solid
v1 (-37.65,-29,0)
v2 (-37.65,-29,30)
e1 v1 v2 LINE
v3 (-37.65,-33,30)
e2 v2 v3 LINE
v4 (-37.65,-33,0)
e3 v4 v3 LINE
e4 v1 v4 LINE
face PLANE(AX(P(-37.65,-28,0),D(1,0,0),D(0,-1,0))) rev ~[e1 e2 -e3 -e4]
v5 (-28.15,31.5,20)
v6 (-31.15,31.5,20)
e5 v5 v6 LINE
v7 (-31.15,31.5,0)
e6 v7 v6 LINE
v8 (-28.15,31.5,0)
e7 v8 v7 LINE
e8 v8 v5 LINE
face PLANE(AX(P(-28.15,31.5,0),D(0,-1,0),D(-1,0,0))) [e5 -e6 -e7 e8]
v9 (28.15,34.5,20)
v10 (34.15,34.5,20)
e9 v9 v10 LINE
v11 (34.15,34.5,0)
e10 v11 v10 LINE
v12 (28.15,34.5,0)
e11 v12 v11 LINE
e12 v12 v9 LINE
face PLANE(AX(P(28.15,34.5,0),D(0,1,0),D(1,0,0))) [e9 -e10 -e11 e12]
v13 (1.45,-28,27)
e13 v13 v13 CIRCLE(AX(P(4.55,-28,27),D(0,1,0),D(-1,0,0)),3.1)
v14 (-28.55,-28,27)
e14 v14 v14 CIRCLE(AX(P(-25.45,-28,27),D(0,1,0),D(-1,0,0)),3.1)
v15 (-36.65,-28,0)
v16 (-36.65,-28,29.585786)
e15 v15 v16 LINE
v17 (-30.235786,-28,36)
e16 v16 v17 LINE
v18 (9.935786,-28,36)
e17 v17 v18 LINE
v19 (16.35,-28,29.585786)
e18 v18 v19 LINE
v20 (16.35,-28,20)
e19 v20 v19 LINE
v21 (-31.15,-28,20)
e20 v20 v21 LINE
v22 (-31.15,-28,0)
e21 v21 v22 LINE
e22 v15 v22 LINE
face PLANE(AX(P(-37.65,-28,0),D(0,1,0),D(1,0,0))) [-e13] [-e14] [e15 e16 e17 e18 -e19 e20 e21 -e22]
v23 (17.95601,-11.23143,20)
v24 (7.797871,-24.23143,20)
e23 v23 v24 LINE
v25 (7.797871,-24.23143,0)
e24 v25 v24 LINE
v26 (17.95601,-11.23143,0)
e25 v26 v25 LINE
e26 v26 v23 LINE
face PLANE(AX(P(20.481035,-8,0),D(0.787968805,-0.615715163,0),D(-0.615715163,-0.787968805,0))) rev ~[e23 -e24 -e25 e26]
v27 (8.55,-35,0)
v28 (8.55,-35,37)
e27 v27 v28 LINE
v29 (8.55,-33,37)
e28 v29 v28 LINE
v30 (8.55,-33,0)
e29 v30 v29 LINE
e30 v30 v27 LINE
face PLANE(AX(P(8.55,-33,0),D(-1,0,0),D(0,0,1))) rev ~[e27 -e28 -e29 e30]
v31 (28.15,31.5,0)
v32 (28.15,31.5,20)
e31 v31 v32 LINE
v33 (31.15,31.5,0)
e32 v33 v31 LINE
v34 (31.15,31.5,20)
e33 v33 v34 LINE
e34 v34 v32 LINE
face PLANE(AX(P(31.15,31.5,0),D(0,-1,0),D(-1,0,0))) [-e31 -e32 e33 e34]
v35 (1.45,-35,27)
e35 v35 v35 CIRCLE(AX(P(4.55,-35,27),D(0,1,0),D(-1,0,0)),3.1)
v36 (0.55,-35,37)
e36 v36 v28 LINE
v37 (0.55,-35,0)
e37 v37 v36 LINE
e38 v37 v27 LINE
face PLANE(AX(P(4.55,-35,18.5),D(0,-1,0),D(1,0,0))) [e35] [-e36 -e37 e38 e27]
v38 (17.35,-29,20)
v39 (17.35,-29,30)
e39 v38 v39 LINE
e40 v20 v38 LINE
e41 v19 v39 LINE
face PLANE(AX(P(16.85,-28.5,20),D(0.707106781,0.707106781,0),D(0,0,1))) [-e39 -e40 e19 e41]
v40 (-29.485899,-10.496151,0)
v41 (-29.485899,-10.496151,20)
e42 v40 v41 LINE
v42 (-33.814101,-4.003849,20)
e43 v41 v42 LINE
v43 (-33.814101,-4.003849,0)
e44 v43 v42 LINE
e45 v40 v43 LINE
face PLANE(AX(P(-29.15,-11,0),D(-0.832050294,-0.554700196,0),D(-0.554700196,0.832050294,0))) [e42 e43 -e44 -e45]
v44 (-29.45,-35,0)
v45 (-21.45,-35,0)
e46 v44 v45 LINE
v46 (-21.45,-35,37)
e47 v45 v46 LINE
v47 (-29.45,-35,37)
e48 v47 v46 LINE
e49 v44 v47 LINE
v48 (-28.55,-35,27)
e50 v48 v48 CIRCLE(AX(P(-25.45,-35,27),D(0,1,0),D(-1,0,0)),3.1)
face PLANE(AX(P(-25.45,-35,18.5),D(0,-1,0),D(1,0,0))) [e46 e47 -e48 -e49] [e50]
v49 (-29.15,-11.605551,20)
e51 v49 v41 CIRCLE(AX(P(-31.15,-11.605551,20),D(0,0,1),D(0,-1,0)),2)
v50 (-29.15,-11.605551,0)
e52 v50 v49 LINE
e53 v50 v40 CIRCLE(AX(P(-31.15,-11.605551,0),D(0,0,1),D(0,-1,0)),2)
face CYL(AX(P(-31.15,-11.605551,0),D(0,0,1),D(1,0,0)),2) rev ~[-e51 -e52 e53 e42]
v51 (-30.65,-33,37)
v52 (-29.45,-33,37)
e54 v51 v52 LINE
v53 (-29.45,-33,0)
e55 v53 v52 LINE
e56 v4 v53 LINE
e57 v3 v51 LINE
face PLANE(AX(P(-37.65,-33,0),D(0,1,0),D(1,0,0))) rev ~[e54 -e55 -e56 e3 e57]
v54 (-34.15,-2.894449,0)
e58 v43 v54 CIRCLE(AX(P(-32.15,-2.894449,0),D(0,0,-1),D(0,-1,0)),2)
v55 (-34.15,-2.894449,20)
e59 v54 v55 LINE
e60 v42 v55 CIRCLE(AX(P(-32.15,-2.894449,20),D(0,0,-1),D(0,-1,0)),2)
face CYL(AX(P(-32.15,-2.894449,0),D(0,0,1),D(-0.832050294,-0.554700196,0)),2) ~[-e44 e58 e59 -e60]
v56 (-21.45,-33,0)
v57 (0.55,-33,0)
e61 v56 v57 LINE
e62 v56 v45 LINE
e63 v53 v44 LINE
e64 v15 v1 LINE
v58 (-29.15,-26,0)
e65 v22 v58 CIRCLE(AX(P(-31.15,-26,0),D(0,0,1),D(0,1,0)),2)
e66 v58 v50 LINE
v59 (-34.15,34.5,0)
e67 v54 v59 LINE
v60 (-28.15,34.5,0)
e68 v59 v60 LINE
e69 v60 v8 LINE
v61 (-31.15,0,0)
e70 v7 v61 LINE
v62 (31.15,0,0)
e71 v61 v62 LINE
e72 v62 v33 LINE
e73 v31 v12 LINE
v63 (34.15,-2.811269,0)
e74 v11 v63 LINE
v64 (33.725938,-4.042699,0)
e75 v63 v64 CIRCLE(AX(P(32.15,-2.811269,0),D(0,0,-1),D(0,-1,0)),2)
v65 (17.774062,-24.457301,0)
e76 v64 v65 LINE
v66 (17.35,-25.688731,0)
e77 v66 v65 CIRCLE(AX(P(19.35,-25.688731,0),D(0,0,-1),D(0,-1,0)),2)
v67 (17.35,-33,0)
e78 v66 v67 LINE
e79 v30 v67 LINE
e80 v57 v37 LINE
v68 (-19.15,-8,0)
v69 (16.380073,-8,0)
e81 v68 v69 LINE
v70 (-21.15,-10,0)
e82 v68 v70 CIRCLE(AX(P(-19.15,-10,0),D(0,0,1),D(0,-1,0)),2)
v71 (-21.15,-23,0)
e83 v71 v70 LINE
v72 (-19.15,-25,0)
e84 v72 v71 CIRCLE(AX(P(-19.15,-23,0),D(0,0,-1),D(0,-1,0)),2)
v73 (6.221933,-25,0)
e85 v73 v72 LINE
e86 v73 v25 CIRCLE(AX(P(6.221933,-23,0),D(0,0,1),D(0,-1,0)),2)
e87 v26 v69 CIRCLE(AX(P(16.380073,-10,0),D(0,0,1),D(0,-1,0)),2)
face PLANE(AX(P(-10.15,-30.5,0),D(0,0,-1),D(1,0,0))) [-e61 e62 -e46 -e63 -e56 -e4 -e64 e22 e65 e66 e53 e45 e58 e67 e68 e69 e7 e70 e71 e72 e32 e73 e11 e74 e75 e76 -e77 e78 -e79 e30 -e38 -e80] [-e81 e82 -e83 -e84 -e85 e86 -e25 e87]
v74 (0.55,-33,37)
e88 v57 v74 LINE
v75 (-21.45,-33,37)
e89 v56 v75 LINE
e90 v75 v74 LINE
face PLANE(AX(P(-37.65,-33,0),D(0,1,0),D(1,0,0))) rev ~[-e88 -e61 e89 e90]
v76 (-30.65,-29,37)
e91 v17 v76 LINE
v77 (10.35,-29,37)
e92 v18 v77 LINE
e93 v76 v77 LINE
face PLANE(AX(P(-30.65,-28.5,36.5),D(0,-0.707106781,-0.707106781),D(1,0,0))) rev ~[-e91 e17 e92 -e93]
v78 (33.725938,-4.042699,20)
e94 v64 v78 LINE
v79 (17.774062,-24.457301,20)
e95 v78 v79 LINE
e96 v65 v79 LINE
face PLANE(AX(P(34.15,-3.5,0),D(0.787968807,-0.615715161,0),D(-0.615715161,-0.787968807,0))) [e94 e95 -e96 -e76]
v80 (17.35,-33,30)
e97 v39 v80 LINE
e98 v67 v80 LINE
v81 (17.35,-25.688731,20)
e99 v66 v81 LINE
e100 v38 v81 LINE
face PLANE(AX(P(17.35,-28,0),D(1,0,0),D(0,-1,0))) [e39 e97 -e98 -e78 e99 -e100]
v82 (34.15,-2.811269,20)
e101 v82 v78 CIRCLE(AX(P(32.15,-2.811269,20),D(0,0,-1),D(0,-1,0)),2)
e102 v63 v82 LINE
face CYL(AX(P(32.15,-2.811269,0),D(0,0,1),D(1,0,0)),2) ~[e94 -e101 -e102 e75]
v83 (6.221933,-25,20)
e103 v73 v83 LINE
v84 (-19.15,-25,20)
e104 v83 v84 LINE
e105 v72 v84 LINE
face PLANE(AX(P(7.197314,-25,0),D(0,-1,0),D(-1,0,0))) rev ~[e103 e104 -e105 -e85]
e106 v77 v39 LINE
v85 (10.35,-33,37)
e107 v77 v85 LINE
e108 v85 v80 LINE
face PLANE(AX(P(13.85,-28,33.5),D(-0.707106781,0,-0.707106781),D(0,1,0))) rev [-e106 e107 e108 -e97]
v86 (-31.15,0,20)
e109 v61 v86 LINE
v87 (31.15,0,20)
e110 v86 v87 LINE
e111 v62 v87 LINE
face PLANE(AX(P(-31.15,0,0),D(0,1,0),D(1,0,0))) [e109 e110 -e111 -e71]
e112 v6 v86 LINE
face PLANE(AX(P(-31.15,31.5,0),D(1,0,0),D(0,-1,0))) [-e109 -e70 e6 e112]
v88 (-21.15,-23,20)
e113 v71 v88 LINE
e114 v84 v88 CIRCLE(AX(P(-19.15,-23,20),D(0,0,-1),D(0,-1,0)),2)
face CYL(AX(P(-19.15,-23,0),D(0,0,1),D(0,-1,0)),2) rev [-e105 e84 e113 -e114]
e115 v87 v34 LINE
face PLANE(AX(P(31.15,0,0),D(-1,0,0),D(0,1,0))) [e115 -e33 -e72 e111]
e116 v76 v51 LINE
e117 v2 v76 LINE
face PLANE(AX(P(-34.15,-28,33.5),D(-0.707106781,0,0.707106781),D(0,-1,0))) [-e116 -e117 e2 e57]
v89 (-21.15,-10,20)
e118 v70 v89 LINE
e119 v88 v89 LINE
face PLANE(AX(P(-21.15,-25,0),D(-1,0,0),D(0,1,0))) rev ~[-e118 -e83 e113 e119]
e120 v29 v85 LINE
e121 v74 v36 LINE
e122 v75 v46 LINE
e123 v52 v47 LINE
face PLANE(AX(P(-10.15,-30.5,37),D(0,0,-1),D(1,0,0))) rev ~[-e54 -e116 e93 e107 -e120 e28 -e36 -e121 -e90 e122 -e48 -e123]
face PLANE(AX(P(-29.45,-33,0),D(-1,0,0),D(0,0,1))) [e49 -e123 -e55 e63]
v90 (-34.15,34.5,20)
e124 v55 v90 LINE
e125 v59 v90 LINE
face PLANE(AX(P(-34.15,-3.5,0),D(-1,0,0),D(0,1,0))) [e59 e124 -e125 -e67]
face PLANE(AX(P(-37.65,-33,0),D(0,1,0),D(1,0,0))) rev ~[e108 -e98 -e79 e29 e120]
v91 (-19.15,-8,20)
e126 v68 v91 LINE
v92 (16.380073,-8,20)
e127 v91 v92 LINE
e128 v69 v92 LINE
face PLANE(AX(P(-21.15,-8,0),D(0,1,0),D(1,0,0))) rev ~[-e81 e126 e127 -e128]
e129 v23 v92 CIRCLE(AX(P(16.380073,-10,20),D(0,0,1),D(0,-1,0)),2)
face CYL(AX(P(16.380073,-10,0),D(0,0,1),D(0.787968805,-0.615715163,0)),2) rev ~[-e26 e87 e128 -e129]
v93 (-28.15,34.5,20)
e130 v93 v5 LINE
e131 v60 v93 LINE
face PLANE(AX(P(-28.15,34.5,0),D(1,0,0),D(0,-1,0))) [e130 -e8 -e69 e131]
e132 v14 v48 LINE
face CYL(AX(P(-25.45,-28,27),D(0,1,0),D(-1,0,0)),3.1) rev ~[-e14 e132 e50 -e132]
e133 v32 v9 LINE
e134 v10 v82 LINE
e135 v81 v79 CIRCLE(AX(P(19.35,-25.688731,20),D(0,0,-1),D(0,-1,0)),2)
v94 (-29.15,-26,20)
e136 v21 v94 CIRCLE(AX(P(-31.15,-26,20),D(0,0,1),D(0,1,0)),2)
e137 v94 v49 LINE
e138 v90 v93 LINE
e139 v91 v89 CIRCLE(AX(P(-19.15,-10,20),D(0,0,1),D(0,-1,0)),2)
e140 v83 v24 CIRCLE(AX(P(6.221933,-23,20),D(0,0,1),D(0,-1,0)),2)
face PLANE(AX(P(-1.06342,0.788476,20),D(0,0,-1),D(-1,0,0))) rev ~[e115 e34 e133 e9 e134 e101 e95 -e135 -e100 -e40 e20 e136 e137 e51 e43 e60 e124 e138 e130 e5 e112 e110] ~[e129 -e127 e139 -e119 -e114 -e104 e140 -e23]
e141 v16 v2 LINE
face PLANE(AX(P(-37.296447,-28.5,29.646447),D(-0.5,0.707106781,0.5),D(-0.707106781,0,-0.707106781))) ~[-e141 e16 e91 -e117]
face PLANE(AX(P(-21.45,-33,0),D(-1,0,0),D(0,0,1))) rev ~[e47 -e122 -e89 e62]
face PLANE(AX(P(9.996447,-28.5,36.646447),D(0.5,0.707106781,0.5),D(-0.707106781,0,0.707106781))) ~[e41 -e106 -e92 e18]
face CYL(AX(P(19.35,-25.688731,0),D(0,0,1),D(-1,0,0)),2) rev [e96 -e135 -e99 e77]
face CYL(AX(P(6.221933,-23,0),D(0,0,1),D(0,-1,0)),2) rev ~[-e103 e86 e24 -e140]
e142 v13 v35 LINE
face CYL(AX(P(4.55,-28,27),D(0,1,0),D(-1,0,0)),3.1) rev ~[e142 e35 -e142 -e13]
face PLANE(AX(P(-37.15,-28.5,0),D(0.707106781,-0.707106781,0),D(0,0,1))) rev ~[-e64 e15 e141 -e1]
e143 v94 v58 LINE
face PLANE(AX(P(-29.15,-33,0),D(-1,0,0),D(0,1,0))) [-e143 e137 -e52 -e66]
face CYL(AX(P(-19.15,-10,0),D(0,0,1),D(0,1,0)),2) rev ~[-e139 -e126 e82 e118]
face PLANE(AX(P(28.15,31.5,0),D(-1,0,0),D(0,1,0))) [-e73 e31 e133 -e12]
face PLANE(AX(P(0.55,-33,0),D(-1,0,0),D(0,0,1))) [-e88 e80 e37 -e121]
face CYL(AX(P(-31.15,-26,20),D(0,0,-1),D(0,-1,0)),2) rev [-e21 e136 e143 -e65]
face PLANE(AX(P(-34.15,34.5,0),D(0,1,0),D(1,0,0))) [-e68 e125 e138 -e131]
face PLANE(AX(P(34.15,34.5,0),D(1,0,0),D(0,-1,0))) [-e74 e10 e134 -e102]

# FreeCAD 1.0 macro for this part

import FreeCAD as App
import Part
import Sketcher
Q = App.Units.Quantity


def edges_at(feature, points):
    """Names of the edges that pass closest to the given points."""
    edges = feature.Shape.Edges
    near = lambda p: min(range(len(edges)), key=lambda i: edges[i].distToShape(Part.Vertex(*p))[0])
    return sorted({f"Edge{near(p) + 1}" for p in points})


def add_polygon(sketch, points):
    """Adds a closed chain of lines whose ends are joined by coincident constraints."""
    first, n = sketch.GeometryCount, len(points)
    for a, b in zip(points, points[1:] + points[:1]):
        sketch.addGeometry(Part.LineSegment(App.Vector(*a, 0), App.Vector(*b, 0)), False)
    for i in range(n):
        sketch.addConstraint(Sketcher.Constraint("Coincident", first + i, 2, first + (i + 1) % n, 1))

doc = App.newDocument("Part")
body = doc.addObject("PartDesign::Body", "Body")

# Sketch on XY plane
sketch1 = body.newObject("Sketcher::SketchObject", "Sketch")
sketch1.AttachmentSupport = (doc.getObject("XY_Plane"), [""])
sketch1.MapMode = "FlatFace"
add_polygon(sketch1, [(31.15, 0), (-31.15, 0), (-31.15, 31.5), (-28.15, 31.5), (-28.15, 34.5), (-34.15, 34.5), (-34.15, -3.5), (-29.15, -11), (-29.15, -33), (17.35, -33), (17.35, -25), (34.15, -3.5), (34.15, 34.5), (28.15, 34.5), (28.15, 31.5), (31.15, 31.5)])  # lines 0-15
add_polygon(sketch1, [(-21.15, -8), (20.481035, -8), (7.197314, -25), (-21.15, -25)])  # lines 16-19
sketch1.addConstraint([
    Sketcher.Constraint("Horizontal", 0),
    Sketcher.Constraint("Vertical", 1),
    Sketcher.Constraint("Horizontal", 2),
    Sketcher.Constraint("Vertical", 3),
    Sketcher.Constraint("Horizontal", 4),
    Sketcher.Constraint("Vertical", 5),
    Sketcher.Constraint("Vertical", 7),
    Sketcher.Constraint("Horizontal", 8),
    Sketcher.Constraint("Vertical", 9),
    Sketcher.Constraint("Vertical", 11),
    Sketcher.Constraint("Horizontal", 12),
    Sketcher.Constraint("Vertical", 13),
    Sketcher.Constraint("Horizontal", 14),
    Sketcher.Constraint("Vertical", 15),
    Sketcher.Constraint("Horizontal", 16),
    Sketcher.Constraint("Horizontal", 18),
    Sketcher.Constraint("Vertical", 19),
    Sketcher.Constraint("Symmetric", 0, 2, 15, 2, -1, 1),
    Sketcher.Constraint("Symmetric", 5, 2, 10, 2, -2),
    Sketcher.Constraint("Symmetric", 3, 2, 12, 2, -2),
    Sketcher.Constraint("Parallel", 10, 17),
    Sketcher.Constraint("Horizontal", 2, 2, 13, 2),
    Sketcher.Constraint("Horizontal", 9, 2, 17, 2),
    Sketcher.Constraint("Equal", 14, 3),
    Sketcher.Constraint("DistanceX", 2, 1, 2, 2, Q("3 mm")),
    Sketcher.Constraint("DistanceX", 4, 2, 4, 1, Q("6 mm")),
    Sketcher.Constraint("DistanceY", 5, 2, 5, 1, Q("38 mm")),
    Sketcher.Constraint("DistanceY", 7, 2, 7, 1, Q("22 mm")),
    Sketcher.Constraint("DistanceY", 9, 1, 9, 2, Q("8 mm")),
    Sketcher.Constraint("DistanceY", 19, 1, 19, 2, Q("17 mm")),
    Sketcher.Constraint("DistanceX", 0, 2, 0, 1, Q("62.3 mm")),
    Sketcher.Constraint("DistanceX", 8, 1, 8, 2, Q("46.5 mm")),
    Sketcher.Constraint("DistanceY", 1, 1, 1, 2, Q("31.5 mm")),
    Sketcher.Constraint("DistanceY", 6, 2, -1, 1, Q("11 mm")),
    Sketcher.Constraint("DistanceX", 5, 2, 6, 2, Q("5 mm")),
    Sketcher.Constraint("DistanceX", 7, 2, 18, 2, Q("8 mm")),
    Sketcher.Constraint("DistanceX", 16, 1, 16, 2, Q("41.631035 mm")),
])
pad1 = body.newObject("PartDesign::Pad", "Pad")
pad1.Profile = sketch1
pad1.Length = 20

# Sketch on XY plane
sketch2 = body.newObject("Sketcher::SketchObject", "Sketch001")
sketch2.AttachmentSupport = (doc.getObject("XY_Plane"), [""])
sketch2.MapMode = "FlatFace"
add_polygon(sketch2, [(-37.65, -33), (-37.65, -28), (17.35, -28), (17.35, -33)])  # lines 0-3
sketch2.addConstraint([
    Sketcher.Constraint("Vertical", 0),
    Sketcher.Constraint("Horizontal", 1),
    Sketcher.Constraint("Vertical", 2),
    Sketcher.Constraint("Horizontal", 3),
    Sketcher.Constraint("DistanceX", 1, 1, 1, 2, Q("55 mm")),
    Sketcher.Constraint("DistanceY", 0, 1, 0, 2, Q("5 mm")),
    Sketcher.Constraint("DistanceY", 0, 2, -1, 1, Q("28 mm")),
    Sketcher.Constraint("DistanceX", 0, 2, -1, 1, Q("37.65 mm")),
])
pad2 = body.newObject("PartDesign::Pad", "Pad001")
pad2.Profile = sketch2
pad2.Length = 37

# Sketch on XZ plane
sketch3 = body.newObject("Sketcher::SketchObject", "Sketch002")
sketch3.AttachmentSupport = (doc.getObject("XZ_Plane"), [""])
sketch3.MapMode = "FlatFace"
sketch3.AttachmentOffset = App.Placement(App.Vector(0, 0, 33), App.Rotation())
add_polygon(sketch3, [(0.55, 37), (0.55, 0), (8.55, 0), (8.55, 37)])  # lines 0-3
add_polygon(sketch3, [(-29.45, 37), (-29.45, 0), (-21.45, 0), (-21.45, 37)])  # lines 4-7
sketch3.addConstraint([
    Sketcher.Constraint("Vertical", 0),
    Sketcher.Constraint("Horizontal", 1),
    Sketcher.Constraint("Vertical", 2),
    Sketcher.Constraint("Horizontal", 3),
    Sketcher.Constraint("Vertical", 4),
    Sketcher.Constraint("Horizontal", 5),
    Sketcher.Constraint("Vertical", 6),
    Sketcher.Constraint("Horizontal", 7),
    Sketcher.Constraint("PointOnObject", 0, 2, -1),
    Sketcher.Constraint("PointOnObject", 4, 2, -1),
    Sketcher.Constraint("Horizontal", 3, 2, 6, 2),
    Sketcher.Constraint("Equal", 3, 5),
    Sketcher.Constraint("DistanceX", 1, 1, 1, 2, Q("8 mm")),
    Sketcher.Constraint("DistanceY", 0, 2, 0, 1, Q("37 mm")),
    Sketcher.Constraint("DistanceX", 4, 2, 0, 2, Q("30 mm")),
    Sketcher.Constraint("DistanceX", -1, 1, 0, 2, Q("0.55 mm")),
])
pad3 = body.newObject("PartDesign::Pad", "Pad002")
pad3.Profile = sketch3
pad3.Length = 2

# Sketch on XZ plane
sketch4 = body.newObject("Sketcher::SketchObject", "Sketch003")
sketch4.AttachmentSupport = (doc.getObject("XZ_Plane"), [""])
sketch4.MapMode = "FlatFace"
sketch4.AttachmentOffset = App.Placement(App.Vector(0, 0, 28), App.Rotation())
sketch4.addGeometry([
    Part.Circle(App.Vector(4.55, 27, 0), App.Vector(0, 0, 1), 3.1),
    Part.Circle(App.Vector(-25.45, 27, 0), App.Vector(0, 0, 1), 3.1),
], False)
sketch4.addConstraint([
    Sketcher.Constraint("Equal", 0, 1),
    Sketcher.Constraint("Horizontal", 0, 3, 1, 3),
    Sketcher.Constraint("Diameter", 0, Q("6.2 mm")),
    Sketcher.Constraint("DistanceY", -1, 1, 0, 3, Q("27 mm")),
    Sketcher.Constraint("DistanceX", 1, 3, 0, 3, Q("30 mm")),
    Sketcher.Constraint("DistanceX", -1, 1, 0, 3, Q("4.55 mm")),
])
pocket1 = body.newObject("PartDesign::Pocket", "Pocket")
pocket1.Profile = sketch4
pocket1.Type = "ThroughAll"
pocket1.Reversed = True
doc.recompute()

chamfer = body.newObject("PartDesign::Chamfer", "Chamfer")
chamfer.Base = (pocket1, edges_at(pocket1, [(-37.65, -30.5, 37), (17.35, -30.5, 37)]))
chamfer.Size = 7
doc.recompute()

fillet = body.newObject("PartDesign::Fillet", "Fillet")
fillet.Base = (chamfer, edges_at(chamfer, [
    (-29.15, -28, 10),
    (-29.15, -11, 10),
    (-34.15, -3.5, 10),
    (17.35, -25, 10),
    (34.15, -3.5, 10),
    (7.197, -25, 10),
    (20.481, -8, 10),
    (-21.15, -8, 10),
    (-21.15, -25, 10),
]))
fillet.Radius = 2
doc.recompute()

chamfer2 = body.newObject("PartDesign::Chamfer", "Chamfer001")
chamfer2.Base = (fillet, edges_at(fillet, [
    (-34.15, -28, 33.5),
    (-37.65, -28, 15),
    (-10.15, -28, 37),
    (13.85, -28, 33.5),
    (17.35, -28, 25),
]))
chamfer2.Size = 1

doc.recompute()
